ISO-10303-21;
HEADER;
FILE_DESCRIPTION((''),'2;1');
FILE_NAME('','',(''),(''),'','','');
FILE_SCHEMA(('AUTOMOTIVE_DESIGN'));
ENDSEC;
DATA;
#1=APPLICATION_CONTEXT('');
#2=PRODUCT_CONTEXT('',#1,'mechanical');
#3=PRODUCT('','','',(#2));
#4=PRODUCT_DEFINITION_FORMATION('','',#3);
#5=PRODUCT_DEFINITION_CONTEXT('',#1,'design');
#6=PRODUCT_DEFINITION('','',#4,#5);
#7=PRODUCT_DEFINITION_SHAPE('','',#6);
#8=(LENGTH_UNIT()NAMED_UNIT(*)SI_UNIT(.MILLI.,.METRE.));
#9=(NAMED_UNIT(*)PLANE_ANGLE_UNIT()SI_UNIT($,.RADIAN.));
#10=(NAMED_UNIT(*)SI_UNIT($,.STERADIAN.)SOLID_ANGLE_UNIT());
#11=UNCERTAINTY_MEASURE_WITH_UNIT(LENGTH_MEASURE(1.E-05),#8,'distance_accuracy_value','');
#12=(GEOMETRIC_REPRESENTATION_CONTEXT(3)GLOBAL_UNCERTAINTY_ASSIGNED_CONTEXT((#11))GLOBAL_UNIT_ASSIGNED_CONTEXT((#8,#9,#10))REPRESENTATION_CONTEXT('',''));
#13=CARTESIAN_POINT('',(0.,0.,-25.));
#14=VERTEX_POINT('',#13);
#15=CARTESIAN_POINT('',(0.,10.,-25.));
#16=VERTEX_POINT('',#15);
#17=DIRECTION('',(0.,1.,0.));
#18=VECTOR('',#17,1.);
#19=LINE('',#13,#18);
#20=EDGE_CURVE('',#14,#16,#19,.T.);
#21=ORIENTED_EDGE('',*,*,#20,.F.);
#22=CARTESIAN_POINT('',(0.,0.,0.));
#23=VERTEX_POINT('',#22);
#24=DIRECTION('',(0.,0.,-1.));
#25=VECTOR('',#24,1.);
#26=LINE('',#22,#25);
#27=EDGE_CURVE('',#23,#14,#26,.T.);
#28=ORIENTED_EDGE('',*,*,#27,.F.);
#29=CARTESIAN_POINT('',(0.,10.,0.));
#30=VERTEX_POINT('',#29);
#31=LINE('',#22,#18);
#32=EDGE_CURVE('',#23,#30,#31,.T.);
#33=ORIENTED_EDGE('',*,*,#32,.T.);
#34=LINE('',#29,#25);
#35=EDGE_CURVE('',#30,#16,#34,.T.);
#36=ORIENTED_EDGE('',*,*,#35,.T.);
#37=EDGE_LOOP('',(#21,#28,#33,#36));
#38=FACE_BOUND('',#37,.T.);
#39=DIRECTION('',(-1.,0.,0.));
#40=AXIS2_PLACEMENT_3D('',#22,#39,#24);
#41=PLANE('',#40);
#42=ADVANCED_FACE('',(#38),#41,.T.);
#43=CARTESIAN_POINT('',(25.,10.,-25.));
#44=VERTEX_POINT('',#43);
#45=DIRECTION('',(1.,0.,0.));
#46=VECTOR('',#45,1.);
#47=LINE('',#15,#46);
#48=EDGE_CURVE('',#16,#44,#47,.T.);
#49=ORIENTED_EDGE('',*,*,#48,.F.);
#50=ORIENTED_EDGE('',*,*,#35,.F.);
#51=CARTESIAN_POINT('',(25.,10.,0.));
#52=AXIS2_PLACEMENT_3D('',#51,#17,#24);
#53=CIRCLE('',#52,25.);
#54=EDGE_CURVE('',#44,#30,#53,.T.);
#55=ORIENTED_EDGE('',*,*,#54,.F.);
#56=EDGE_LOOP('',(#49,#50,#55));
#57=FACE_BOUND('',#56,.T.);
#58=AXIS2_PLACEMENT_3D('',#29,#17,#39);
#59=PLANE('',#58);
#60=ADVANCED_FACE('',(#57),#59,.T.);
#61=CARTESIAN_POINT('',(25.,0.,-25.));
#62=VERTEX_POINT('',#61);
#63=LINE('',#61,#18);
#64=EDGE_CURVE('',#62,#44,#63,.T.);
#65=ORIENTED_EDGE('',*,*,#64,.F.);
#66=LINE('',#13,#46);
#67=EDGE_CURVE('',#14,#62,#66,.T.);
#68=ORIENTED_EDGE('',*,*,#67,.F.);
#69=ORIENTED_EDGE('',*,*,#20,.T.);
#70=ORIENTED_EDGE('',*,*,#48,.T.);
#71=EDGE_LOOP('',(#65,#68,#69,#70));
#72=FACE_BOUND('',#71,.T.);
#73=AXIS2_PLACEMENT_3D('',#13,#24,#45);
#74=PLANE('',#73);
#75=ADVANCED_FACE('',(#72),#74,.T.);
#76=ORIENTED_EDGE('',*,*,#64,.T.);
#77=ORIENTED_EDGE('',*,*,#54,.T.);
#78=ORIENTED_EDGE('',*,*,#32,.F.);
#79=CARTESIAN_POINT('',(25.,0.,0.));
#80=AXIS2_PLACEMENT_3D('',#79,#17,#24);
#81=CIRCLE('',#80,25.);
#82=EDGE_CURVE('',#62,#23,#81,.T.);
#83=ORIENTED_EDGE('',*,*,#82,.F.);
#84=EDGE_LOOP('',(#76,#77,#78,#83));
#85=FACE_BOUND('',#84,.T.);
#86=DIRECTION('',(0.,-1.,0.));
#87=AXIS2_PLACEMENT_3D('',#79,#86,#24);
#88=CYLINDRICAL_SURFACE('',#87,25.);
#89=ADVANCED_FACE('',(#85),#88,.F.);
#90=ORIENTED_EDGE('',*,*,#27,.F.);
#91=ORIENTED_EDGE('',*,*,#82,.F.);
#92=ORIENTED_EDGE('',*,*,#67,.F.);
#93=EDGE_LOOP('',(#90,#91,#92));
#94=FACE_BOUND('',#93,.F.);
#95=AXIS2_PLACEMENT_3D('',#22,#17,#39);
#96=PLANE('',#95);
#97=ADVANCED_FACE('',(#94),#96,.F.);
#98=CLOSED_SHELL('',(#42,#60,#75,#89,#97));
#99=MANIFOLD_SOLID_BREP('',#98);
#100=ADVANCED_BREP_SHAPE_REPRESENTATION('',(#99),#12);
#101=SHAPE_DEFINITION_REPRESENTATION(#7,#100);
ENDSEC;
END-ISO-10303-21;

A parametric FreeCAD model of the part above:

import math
import FreeCAD as App
import Part
import Sketcher

V = App.Vector
Q = App.Units.Quantity

doc = App.newDocument("Part")
body = doc.addObject("PartDesign::Body", "Body")

sketch1 = body.newObject("Sketcher::SketchObject", "Sketch")
sketch1.AttachmentSupport = (doc.getObject("XZ_Plane"), [""])
sketch1.MapMode = "FlatFace"
sketch1.addGeometry([
    Part.LineSegment(V(0, -25, 0), V(0, 0, 0)),
    Part.ArcOfCircle(Part.Circle(V(25, 0, 0), V(0, 0, 1), 25), math.radians(180), math.radians(270)),
    Part.LineSegment(V(25, -25, 0), V(0, -25, 0)),
], False)
sketch1.addConstraint([
    Sketcher.Constraint("Tangent", 0, 2, 1, 1),
    Sketcher.Constraint("Tangent", 1, 2, 2, 1),
    Sketcher.Constraint("Coincident", 2, 2, 0, 1),
    Sketcher.Constraint("Vertical", 0),
    Sketcher.Constraint("Horizontal", 2),
    Sketcher.Constraint("Coincident", 0, 2, -1, 1),
    Sketcher.Constraint("Radius", 1, Q("25 mm")),
])
pad1 = body.newObject("PartDesign::Pad", "Pad")
pad1.Profile = sketch1
pad1.Length = 10
pad1.Reversed = True

doc.recompute()
